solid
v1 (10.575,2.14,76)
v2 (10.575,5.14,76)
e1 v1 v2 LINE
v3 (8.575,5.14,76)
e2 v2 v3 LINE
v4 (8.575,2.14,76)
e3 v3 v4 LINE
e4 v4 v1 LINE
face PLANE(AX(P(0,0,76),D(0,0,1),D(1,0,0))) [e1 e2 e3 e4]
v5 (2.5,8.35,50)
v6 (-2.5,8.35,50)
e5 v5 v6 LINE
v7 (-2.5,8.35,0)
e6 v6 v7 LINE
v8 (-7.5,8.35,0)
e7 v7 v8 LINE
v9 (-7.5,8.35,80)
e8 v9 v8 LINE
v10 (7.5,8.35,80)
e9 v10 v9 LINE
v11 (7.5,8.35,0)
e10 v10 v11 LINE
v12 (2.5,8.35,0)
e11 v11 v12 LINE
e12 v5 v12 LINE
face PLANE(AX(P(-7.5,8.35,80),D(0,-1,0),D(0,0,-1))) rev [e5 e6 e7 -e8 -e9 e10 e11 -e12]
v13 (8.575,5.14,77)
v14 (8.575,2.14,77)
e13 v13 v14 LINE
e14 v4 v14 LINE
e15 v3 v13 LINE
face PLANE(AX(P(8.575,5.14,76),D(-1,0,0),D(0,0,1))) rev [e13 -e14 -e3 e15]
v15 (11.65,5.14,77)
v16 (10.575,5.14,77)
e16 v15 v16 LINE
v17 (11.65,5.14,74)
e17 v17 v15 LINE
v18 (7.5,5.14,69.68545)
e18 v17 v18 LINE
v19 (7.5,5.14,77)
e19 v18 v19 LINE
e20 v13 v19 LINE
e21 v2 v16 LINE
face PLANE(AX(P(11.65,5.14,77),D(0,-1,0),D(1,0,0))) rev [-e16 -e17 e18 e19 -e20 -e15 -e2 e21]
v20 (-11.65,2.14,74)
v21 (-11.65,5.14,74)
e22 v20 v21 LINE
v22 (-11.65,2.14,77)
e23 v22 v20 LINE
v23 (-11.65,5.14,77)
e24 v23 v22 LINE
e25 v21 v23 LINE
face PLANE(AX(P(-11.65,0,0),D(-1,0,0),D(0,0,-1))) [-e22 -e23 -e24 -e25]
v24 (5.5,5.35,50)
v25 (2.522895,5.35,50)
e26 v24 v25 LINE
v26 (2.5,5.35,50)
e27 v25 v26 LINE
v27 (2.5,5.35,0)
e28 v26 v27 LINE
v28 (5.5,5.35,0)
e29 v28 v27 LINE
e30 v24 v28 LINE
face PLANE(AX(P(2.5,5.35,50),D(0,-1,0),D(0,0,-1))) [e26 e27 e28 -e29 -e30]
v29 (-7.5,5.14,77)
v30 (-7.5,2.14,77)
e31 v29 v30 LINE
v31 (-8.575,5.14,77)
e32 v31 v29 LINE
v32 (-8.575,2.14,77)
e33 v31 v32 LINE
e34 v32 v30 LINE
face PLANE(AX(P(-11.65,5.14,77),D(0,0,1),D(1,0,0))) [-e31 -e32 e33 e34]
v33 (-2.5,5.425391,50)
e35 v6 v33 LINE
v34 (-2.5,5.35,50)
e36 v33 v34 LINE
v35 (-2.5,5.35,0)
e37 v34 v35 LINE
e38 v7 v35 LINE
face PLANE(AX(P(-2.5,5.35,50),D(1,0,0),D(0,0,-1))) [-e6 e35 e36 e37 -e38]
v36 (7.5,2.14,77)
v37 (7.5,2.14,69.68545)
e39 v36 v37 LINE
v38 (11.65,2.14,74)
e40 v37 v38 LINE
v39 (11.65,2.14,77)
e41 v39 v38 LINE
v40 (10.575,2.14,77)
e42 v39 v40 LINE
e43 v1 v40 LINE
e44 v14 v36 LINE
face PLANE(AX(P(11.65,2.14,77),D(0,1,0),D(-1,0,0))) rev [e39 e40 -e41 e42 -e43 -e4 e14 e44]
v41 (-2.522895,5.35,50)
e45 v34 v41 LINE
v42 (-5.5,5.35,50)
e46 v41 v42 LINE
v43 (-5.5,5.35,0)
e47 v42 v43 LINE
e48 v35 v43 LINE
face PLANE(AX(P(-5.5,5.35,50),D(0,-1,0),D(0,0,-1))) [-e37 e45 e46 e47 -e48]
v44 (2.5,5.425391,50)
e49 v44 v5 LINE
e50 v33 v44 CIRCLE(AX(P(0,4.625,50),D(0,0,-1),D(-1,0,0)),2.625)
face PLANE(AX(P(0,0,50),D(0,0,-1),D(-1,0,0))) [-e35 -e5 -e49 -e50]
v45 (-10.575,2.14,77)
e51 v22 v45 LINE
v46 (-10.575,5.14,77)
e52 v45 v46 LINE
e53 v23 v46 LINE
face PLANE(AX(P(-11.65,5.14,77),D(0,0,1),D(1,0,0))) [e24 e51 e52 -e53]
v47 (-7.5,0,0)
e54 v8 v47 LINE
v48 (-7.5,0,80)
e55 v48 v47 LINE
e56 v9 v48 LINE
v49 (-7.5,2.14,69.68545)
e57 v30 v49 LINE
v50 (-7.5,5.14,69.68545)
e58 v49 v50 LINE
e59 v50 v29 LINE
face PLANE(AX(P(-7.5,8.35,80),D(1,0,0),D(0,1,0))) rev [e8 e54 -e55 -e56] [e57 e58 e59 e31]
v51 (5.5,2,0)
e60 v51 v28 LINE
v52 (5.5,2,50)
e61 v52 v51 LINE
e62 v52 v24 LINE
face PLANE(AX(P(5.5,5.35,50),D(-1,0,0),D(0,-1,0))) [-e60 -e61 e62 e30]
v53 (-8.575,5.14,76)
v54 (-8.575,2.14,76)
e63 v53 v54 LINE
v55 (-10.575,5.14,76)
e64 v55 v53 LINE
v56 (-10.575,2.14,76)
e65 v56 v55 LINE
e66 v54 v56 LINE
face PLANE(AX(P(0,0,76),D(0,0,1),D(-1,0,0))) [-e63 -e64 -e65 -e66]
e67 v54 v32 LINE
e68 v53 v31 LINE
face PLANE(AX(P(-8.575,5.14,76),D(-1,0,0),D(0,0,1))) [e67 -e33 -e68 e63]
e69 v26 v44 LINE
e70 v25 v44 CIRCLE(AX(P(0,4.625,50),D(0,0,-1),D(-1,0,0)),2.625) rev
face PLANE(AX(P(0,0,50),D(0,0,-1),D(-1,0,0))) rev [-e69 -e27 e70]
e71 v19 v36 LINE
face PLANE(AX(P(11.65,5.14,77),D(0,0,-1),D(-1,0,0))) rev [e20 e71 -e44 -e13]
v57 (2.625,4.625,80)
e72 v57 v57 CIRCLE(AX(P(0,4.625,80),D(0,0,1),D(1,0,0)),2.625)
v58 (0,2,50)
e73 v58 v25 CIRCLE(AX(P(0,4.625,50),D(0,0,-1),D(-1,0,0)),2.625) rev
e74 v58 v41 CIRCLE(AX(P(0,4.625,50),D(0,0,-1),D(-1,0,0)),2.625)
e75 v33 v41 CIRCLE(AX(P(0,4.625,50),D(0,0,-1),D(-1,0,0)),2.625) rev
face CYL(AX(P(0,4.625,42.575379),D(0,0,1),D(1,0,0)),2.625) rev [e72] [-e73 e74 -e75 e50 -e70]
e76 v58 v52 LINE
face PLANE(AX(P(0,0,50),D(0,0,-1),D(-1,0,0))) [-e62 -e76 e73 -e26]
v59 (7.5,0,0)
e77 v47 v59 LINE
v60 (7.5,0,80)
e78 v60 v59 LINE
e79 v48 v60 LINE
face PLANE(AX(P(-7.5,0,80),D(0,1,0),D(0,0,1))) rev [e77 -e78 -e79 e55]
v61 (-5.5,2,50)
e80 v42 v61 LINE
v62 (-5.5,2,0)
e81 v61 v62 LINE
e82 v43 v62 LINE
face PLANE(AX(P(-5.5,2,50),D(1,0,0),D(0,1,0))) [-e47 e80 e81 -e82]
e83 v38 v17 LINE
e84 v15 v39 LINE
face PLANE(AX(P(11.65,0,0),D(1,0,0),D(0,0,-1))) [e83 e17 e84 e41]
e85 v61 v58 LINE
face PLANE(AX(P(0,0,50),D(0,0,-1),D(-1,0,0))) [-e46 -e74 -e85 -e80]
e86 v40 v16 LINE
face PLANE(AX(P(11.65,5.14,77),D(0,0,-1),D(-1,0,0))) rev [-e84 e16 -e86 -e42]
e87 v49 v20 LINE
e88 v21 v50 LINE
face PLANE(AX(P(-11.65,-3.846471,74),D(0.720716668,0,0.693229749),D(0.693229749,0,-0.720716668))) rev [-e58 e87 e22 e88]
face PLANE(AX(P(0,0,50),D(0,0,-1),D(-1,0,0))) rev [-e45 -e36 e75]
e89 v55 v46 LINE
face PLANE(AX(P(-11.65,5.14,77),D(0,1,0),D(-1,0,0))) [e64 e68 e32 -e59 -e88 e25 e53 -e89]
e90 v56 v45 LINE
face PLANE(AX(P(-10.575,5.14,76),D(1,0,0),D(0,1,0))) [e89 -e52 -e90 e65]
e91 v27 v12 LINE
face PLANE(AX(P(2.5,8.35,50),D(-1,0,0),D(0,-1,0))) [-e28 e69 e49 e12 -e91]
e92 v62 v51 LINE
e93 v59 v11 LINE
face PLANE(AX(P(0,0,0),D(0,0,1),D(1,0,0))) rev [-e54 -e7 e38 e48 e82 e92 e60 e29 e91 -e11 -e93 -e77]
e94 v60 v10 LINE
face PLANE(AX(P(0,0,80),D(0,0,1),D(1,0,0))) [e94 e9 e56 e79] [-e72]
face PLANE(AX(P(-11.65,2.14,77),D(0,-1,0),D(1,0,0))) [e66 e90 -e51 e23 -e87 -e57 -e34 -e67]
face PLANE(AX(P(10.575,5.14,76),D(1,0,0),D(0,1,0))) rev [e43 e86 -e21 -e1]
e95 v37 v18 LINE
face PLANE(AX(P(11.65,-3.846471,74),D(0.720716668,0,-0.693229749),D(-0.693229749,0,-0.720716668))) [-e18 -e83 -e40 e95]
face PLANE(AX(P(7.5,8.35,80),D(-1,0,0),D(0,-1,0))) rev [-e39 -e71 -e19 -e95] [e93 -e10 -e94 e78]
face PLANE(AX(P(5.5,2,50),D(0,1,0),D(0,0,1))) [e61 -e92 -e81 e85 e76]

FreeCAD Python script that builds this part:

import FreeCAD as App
import Part
import Sketcher

doc = App.newDocument("Part")
params = doc.addObject("Spreadsheet::Sheet", "Params")
for row, (alias, value) in enumerate([
    ("sketch1_width", "15 mm"),
    ("sketch1_height", "8.35 mm"),
    ("pad1_length", "80 mm"),
    ("sketch2_width", "11 mm"),
    ("sketch2_width2", "3 mm"),
    ("sketch2_height", "3.35 mm"),
    ("pocket1_length", "50 mm"),
    ("sketch3_diameter", "5.25 mm"),
    ("pocket2_length", "30 mm"),
    ("sketch4_width", "3 mm"),
    ("pad2_length", "4.15 mm"),
    ("sketch5_width", "2 mm"),
    ("sketch5_height", "3 mm"),
    ("pocket3_length", "1 mm"),
    ("sketch6_width", "4.15 mm"),
    ("pad3_length", "3 mm"),
], start=1):
    params.set(f"A{row}", alias)
    params.set(f"B{row}", "=" + value)
    params.setAlias(f"B{row}", alias)

body = doc.addObject("PartDesign::Body", "Body")

sketch1 = doc.addObject("Sketcher::SketchObject", "Sketch")
body.addObject(sketch1)
sketch1.AttachmentSupport = (doc.XY_Plane, [""])
sketch1.MapMode = "FlatFace"
sketch1.addGeometry([
    Part.LineSegment(App.Vector(-8, 8, 0), App.Vector(-8, 0, 0)),
    Part.LineSegment(App.Vector(-8, 0, 0), App.Vector(8, 0, 0)),
    Part.LineSegment(App.Vector(8, 0, 0), App.Vector(8, 8, 0)),
    Part.LineSegment(App.Vector(8, 8, 0), App.Vector(-8, 8, 0)),
], False)
sketch1.addConstraint([
    Sketcher.Constraint("Coincident", 0, 2, 1, 1),
    Sketcher.Constraint("Coincident", 1, 2, 2, 1),
    Sketcher.Constraint("Coincident", 2, 2, 3, 1),
    Sketcher.Constraint("Coincident", 3, 2, 0, 1),
    Sketcher.Constraint("Vertical", 0),
    Sketcher.Constraint("Horizontal", 1),
    Sketcher.Constraint("Vertical", 2),
    Sketcher.Constraint("Horizontal", 3),
    Sketcher.Constraint("Symmetric", 0, 2, 1, 2, -1, 1),
    Sketcher.Constraint("DistanceX", 1, 1, 1, 2, 15.0),
    Sketcher.Constraint("DistanceY", 0, 2, 0, 1, 8.35),
])
sketch1.setExpression("Constraints[9]", "Params.sketch1_width")
sketch1.setExpression("Constraints[10]", "Params.sketch1_height")
pad1 = doc.addObject("PartDesign::Pad", "Pad")
body.addObject(pad1)
pad1.Profile = sketch1
pad1.setExpression("Length", "Params.pad1_length")

sketch2 = doc.addObject("Sketcher::SketchObject", "Sketch001")
body.addObject(sketch2)
sketch2.AttachmentSupport = (doc.XY_Plane, [""])
sketch2.MapMode = "FlatFace"
sketch2.addGeometry([
    Part.LineSegment(App.Vector(-5.5, 5.3, 0), App.Vector(-5.5, 2, 0)),
    Part.LineSegment(App.Vector(-5.5, 2, 0), App.Vector(5.5, 2, 0)),
    Part.LineSegment(App.Vector(5.5, 2, 0), App.Vector(5.5, 5.3, 0)),
    Part.LineSegment(App.Vector(5.5, 5.3, 0), App.Vector(2.5, 5.3, 0)),
    Part.LineSegment(App.Vector(2.5, 5.3, 0), App.Vector(2.5, 8.3, 0)),
    Part.LineSegment(App.Vector(2.5, 8.3, 0), App.Vector(-2.5, 8.3, 0)),
    Part.LineSegment(App.Vector(-2.5, 8.3, 0), App.Vector(-2.5, 5.3, 0)),
    Part.LineSegment(App.Vector(-2.5, 5.3, 0), App.Vector(-5.5, 5.3, 0)),
], False)
sketch2.addConstraint([
    Sketcher.Constraint("Coincident", 0, 2, 1, 1),
    Sketcher.Constraint("Coincident", 1, 2, 2, 1),
    Sketcher.Constraint("Coincident", 2, 2, 3, 1),
    Sketcher.Constraint("Coincident", 3, 2, 4, 1),
    Sketcher.Constraint("Coincident", 4, 2, 5, 1),
    Sketcher.Constraint("Coincident", 5, 2, 6, 1),
    Sketcher.Constraint("Coincident", 6, 2, 7, 1),
    Sketcher.Constraint("Coincident", 7, 2, 0, 1),
    Sketcher.Constraint("Vertical", 0),
    Sketcher.Constraint("Horizontal", 1),
    Sketcher.Constraint("Vertical", 2),
    Sketcher.Constraint("Horizontal", 3),
    Sketcher.Constraint("Vertical", 4),
    Sketcher.Constraint("Horizontal", 5),
    Sketcher.Constraint("Vertical", 6),
    Sketcher.Constraint("Horizontal", 7),
    Sketcher.Constraint("Symmetric", 3, 2, 6, 2, -2),
    Sketcher.Constraint("Equal", 3, 7),
    Sketcher.Constraint("Equal", 7, 4),
    Sketcher.Constraint("DistanceX", 1, 1, 1, 2, 11.0),
    Sketcher.Constraint("DistanceX", 3, 2, 3, 1, 3.0),
    Sketcher.Constraint("DistanceY", -1, 1, 0, 2, 2.0),
    Sketcher.Constraint("DistanceY", 0, 2, 0, 1, 3.35),
])
sketch2.setExpression("Constraints[19]", "Params.sketch2_width")
sketch2.setExpression("Constraints[20]", "Params.sketch2_width2")
sketch2.setExpression("Constraints[22]", "Params.sketch2_height")
pocket1 = doc.addObject("PartDesign::Pocket", "Pocket")
body.addObject(pocket1)
pocket1.Profile = sketch2
pocket1.setExpression("Length", "Params.pocket1_length")
pocket1.Reversed = True

sketch3 = doc.addObject("Sketcher::SketchObject", "Sketch002")
body.addObject(sketch3)
sketch3.AttachmentSupport = (doc.XY_Plane, [""])
sketch3.MapMode = "FlatFace"
sketch3.AttachmentOffset = App.Placement(App.Vector(0, 0, 80), App.Rotation())
sketch3.addGeometry(Part.Circle(App.Vector(0, 4.6, 0), App.Vector(0, 0, 1), 2.6), False)
sketch3.addConstraint([
    Sketcher.Constraint("PointOnObject", 0, 3, -2),
    Sketcher.Constraint("Diameter", 0, 5.25),
    Sketcher.Constraint("DistanceY", -1, 1, 0, 3, 4.625),
])
sketch3.setExpression("Constraints[1]", "Params.sketch3_diameter")
pocket2 = doc.addObject("PartDesign::Pocket", "Pocket001")
body.addObject(pocket2)
pocket2.Profile = sketch3
pocket2.setExpression("Length", "Params.pocket2_length")

sketch4 = doc.addObject("Sketcher::SketchObject", "Sketch003")
body.addObject(sketch4)
sketch4.AttachmentSupport = (doc.YZ_Plane, [""])
sketch4.MapMode = "FlatFace"
sketch4.AttachmentOffset = App.Placement(App.Vector(0, 0, 7.5), App.Rotation())
sketch4.addGeometry([
    Part.LineSegment(App.Vector(5.1, 77, 0), App.Vector(2.1, 77, 0)),
    Part.LineSegment(App.Vector(2.1, 77, 0), App.Vector(2.1, 74, 0)),
    Part.LineSegment(App.Vector(2.1, 74, 0), App.Vector(5.1, 74, 0)),
    Part.LineSegment(App.Vector(5.1, 74, 0), App.Vector(5.1, 77, 0)),
], False)
sketch4.addConstraint([
    Sketcher.Constraint("Coincident", 0, 2, 1, 1),
    Sketcher.Constraint("Coincident", 1, 2, 2, 1),
    Sketcher.Constraint("Coincident", 2, 2, 3, 1),
    Sketcher.Constraint("Coincident", 3, 2, 0, 1),
    Sketcher.Constraint("Horizontal", 0),
    Sketcher.Constraint("Vertical", 1),
    Sketcher.Constraint("Horizontal", 2),
    Sketcher.Constraint("Vertical", 3),
    Sketcher.Constraint("Equal", 2, 1),
    Sketcher.Constraint("DistanceX", 0, 2, 0, 1, 3.0),
    Sketcher.Constraint("DistanceY", -1, 1, 0, 2, 77.0),
    Sketcher.Constraint("DistanceX", -1, 1, 0, 2, 2.14),
])
sketch4.setExpression("Constraints[9]", "Params.sketch4_width")
pad2 = doc.addObject("PartDesign::Pad", "Pad001")
body.addObject(pad2)
pad2.Profile = sketch4
pad2.setExpression("Length", "Params.pad2_length")

sketch5 = doc.addObject("Sketcher::SketchObject", "Sketch004")
body.addObject(sketch5)
sketch5.AttachmentSupport = (doc.XY_Plane, [""])
sketch5.MapMode = "FlatFace"
sketch5.AttachmentOffset = App.Placement(App.Vector(0, 0, 77), App.Rotation())
sketch5.addGeometry([
    Part.LineSegment(App.Vector(8.6, 5.1, 0), App.Vector(8.6, 2.1, 0)),
    Part.LineSegment(App.Vector(8.6, 2.1, 0), App.Vector(10.6, 2.1, 0)),
    Part.LineSegment(App.Vector(10.6, 2.1, 0), App.Vector(10.6, 5.1, 0)),
    Part.LineSegment(App.Vector(10.6, 5.1, 0), App.Vector(8.6, 5.1, 0)),
], False)
sketch5.addConstraint([
    Sketcher.Constraint("Coincident", 0, 2, 1, 1),
    Sketcher.Constraint("Coincident", 1, 2, 2, 1),
    Sketcher.Constraint("Coincident", 2, 2, 3, 1),
    Sketcher.Constraint("Coincident", 3, 2, 0, 1),
    Sketcher.Constraint("Vertical", 0),
    Sketcher.Constraint("Horizontal", 1),
    Sketcher.Constraint("Vertical", 2),
    Sketcher.Constraint("Horizontal", 3),
    Sketcher.Constraint("DistanceX", 1, 1, 1, 2, 2.0),
    Sketcher.Constraint("DistanceY", 0, 2, 0, 1, 3.0),
    Sketcher.Constraint("DistanceY", -1, 1, 0, 2, 2.14),
    Sketcher.Constraint("DistanceX", -1, 1, 0, 2, 8.575),
])
sketch5.setExpression("Constraints[8]", "Params.sketch5_width")
sketch5.setExpression("Constraints[9]", "Params.sketch5_height")
pocket3 = doc.addObject("PartDesign::Pocket", "Pocket002")
body.addObject(pocket3)
pocket3.Profile = sketch5
pocket3.setExpression("Length", "Params.pocket3_length")
doc.recompute()

mirrored = doc.addObject("PartDesign::Mirrored", "Mirrored")
body.addObject(mirrored)
mirrored.Originals = [pad2]
mirrored.MirrorPlane = (doc.YZ_Plane, [""])
body.Tip = mirrored
doc.recompute()

mirrored2 = doc.addObject("PartDesign::Mirrored", "Mirrored001")
body.addObject(mirrored2)
mirrored2.Originals = [pocket3]
mirrored2.MirrorPlane = (doc.YZ_Plane, [""])
body.Tip = mirrored2

sketch6 = doc.addObject("Sketcher::SketchObject", "Sketch005")
body.addObject(sketch6)
sketch6.AttachmentSupport = (doc.XZ_Plane, [""])
sketch6.MapMode = "FlatFace"
sketch6.AttachmentOffset = App.Placement(App.Vector(0, 0, -5.14), App.Rotation())
sketch6.addGeometry([
    Part.LineSegment(App.Vector(11.7, 74, 0), App.Vector(7.5, 69.7, 0)),
    Part.LineSegment(App.Vector(7.5, 69.7, 0), App.Vector(7.5, 74, 0)),
    Part.LineSegment(App.Vector(7.5, 74, 0), App.Vector(11.7, 74, 0)),
], False)
sketch6.addConstraint([
    Sketcher.Constraint("Coincident", 0, 2, 1, 1),
    Sketcher.Constraint("Coincident", 1, 2, 2, 1),
    Sketcher.Constraint("Coincident", 2, 2, 0, 1),
    Sketcher.Constraint("Vertical", 1),
    Sketcher.Constraint("Horizontal", 2),
    Sketcher.Constraint("DistanceY", -1, 1, 1, 2, 74.0),
    Sketcher.Constraint("DistanceX", 2, 1, 2, 2, 4.15),
    Sketcher.Constraint("DistanceX", -1, 1, 0, 2, 7.5),
    Sketcher.Constraint("DistanceY", 1, 1, 1, 2, 4.31455),
])
sketch6.setExpression("Constraints[6]", "Params.sketch6_width")
pad3 = doc.addObject("PartDesign::Pad", "Pad002")
body.addObject(pad3)
pad3.Profile = sketch6
pad3.setExpression("Length", "Params.pad3_length")
doc.recompute()

mirrored3 = doc.addObject("PartDesign::Mirrored", "Mirrored002")
body.addObject(mirrored3)
mirrored3.Originals = [pad3]
mirrored3.MirrorPlane = (doc.YZ_Plane, [""])
body.Tip = mirrored3

doc.recompute()
